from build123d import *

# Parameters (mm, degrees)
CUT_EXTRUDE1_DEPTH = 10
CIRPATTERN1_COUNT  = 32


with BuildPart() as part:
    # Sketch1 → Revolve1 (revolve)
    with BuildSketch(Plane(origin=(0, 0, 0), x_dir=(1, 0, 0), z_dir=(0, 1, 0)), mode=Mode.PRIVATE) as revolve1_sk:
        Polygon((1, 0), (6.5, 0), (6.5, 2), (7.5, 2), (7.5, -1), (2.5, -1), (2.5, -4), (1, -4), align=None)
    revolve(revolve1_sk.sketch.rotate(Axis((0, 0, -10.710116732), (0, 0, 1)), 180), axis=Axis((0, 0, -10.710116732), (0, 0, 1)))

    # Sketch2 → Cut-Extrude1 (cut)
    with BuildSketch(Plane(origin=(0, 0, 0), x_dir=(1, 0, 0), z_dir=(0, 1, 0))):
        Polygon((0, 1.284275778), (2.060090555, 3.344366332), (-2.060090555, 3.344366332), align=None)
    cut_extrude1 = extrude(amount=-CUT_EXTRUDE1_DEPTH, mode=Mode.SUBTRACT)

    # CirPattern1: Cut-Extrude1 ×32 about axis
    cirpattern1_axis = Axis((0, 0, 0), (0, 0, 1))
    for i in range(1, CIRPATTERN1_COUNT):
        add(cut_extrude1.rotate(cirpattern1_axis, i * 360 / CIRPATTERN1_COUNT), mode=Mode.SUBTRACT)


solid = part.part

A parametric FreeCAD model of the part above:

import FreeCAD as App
import Part
import Sketcher
from FreeCAD import Vector

doc = App.newDocument("Part")
body = doc.addObject("PartDesign::Body", "Body")

# Sketch on XZ plane
sketch1 = body.newObject("Sketcher::SketchObject", "Sketch")
sketch1.AttachmentSupport = (doc.getObject("XZ_Plane"), [""])
sketch1.MapMode = "FlatFace"
sketch1.addGeometry([
    Part.LineSegment(Vector(6.5, 0, 0), Vector(1, 0, 0)),  # 0
    Part.LineSegment(Vector(1, 0, 0), Vector(1, 4, 0)),  # 1
    Part.LineSegment(Vector(1, 4, 0), Vector(2.5, 4, 0)),  # 2
    Part.LineSegment(Vector(2.5, 4, 0), Vector(2.5, 1, 0)),  # 3
    Part.LineSegment(Vector(2.5, 1, 0), Vector(7.5, 1, 0)),  # 4
    Part.LineSegment(Vector(7.5, 1, 0), Vector(7.5, -2, 0)),  # 5
    Part.LineSegment(Vector(7.5, -2, 0), Vector(6.5, -2, 0)),  # 6
    Part.LineSegment(Vector(6.5, -2, 0), Vector(6.5, 0, 0)),  # 7
], False)
sketch1.addConstraint([
    Sketcher.Constraint("Coincident", 0, 2, 1, 1),
    Sketcher.Constraint("Coincident", 1, 2, 2, 1),
    Sketcher.Constraint("Coincident", 2, 2, 3, 1),
    Sketcher.Constraint("Coincident", 3, 2, 4, 1),
    Sketcher.Constraint("Coincident", 4, 2, 5, 1),
    Sketcher.Constraint("Coincident", 5, 2, 6, 1),
    Sketcher.Constraint("Coincident", 6, 2, 7, 1),
    Sketcher.Constraint("Coincident", 7, 2, 0, 1),
    Sketcher.Constraint("Horizontal", 0),
    Sketcher.Constraint("Vertical", 1),
    Sketcher.Constraint("Horizontal", 2),
    Sketcher.Constraint("Vertical", 3),
    Sketcher.Constraint("Horizontal", 4),
    Sketcher.Constraint("Vertical", 5),
    Sketcher.Constraint("Horizontal", 6),
    Sketcher.Constraint("Vertical", 7),
    Sketcher.Constraint("PointOnObject", 0, 2, -1),
    Sketcher.Constraint("Equal", 3, 5),
    Sketcher.Constraint("DistanceX", 4, 1, 4, 2, 5.0),
    Sketcher.Constraint("DistanceX", 6, 2, 6, 1, 1.0),
    Sketcher.Constraint("DistanceY", 1, 1, 1, 2, 4.0),
    Sketcher.Constraint("DistanceY", 3, 2, 3, 1, 3.0),
    Sketcher.Constraint("DistanceX", 0, 2, 0, 1, 5.5),
    Sketcher.Constraint("DistanceX", -1, 1, 0, 2, 1.0),
])
revolution = body.newObject("PartDesign::Revolution", "Revolution")
revolution.Profile = sketch1
revolution.ReferenceAxis = (sketch1, ["V_Axis"])
revolution.Angle = 360

# Sketch on XZ plane
sketch2 = body.newObject("Sketcher::SketchObject", "Sketch001")
sketch2.AttachmentSupport = (doc.getObject("XZ_Plane"), [""])
sketch2.MapMode = "FlatFace"
sketch2.addGeometry([
    Part.LineSegment(Vector(0, -1.3, 0), Vector(2.1, -3.3, 0)),
    Part.LineSegment(Vector(2.1, -3.3, 0), Vector(-2.1, -3.3, 0)),
    Part.LineSegment(Vector(-2.1, -3.3, 0), Vector(0, -1.3, 0)),
], False)
sketch2.addConstraint([
    Sketcher.Constraint("Coincident", 0, 2, 1, 1),
    Sketcher.Constraint("Coincident", 1, 2, 2, 1),
    Sketcher.Constraint("Coincident", 2, 2, 0, 1),
    Sketcher.Constraint("Horizontal", 1),
    Sketcher.Constraint("PointOnObject", 2, 2, -2),
    Sketcher.Constraint("Perpendicular", 0, 2),
    Sketcher.Constraint("Equal", 0, 2),
    Sketcher.Constraint("DistanceX", 1, 2, 1, 1, 4.120181),
    Sketcher.Constraint("DistanceY", 0, 2, -1, 1, 3.344366),
])
pocket1 = body.newObject("PartDesign::Pocket", "Pocket")
pocket1.Profile = sketch2
pocket1.Length = 10
pocket1.Reversed = True
doc.recompute()

polarpattern = body.newObject("PartDesign::PolarPattern", "PolarPattern")
polarpattern.Originals = [pocket1]
polarpattern.Axis = (doc.getObject("Z_Axis"), [""])
polarpattern.Angle = 360
polarpattern.Occurrences = 32
body.Tip = polarpattern

doc.recompute()
